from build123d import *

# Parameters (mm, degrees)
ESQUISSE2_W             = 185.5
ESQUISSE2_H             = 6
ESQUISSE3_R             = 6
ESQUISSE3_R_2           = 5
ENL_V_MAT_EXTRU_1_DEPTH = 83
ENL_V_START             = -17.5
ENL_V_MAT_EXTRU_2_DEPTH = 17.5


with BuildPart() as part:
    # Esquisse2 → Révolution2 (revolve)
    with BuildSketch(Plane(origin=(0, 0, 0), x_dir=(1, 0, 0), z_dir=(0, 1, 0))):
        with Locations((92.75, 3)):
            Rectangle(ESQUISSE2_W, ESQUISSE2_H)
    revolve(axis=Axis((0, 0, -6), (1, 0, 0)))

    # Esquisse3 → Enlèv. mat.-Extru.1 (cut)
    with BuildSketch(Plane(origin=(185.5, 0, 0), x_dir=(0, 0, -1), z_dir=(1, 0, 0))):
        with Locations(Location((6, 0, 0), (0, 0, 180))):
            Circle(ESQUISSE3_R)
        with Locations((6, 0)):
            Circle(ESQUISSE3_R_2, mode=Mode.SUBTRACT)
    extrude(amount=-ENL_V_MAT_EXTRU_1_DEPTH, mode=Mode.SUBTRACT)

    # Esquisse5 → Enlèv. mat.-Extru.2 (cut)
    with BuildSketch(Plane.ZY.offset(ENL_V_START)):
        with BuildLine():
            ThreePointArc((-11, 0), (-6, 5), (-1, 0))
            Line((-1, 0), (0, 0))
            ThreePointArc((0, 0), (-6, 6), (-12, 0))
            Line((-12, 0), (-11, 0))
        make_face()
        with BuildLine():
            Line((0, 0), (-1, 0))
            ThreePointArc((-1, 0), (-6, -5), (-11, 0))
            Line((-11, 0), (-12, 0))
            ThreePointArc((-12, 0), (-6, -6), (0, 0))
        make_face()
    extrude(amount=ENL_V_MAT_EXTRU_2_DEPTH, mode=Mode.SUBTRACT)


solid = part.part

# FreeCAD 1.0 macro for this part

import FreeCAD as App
import Part
import Sketcher
from FreeCAD import Vector

doc = App.newDocument("Part")
body = doc.addObject("PartDesign::Body", "Body")

# Sketch on XZ plane
sketch1 = body.newObject("Sketcher::SketchObject", "Sketch")
sketch1.AttachmentSupport = (doc.getObject("XZ_Plane"), [""])
sketch1.MapMode = "FlatFace"
sketch1.addGeometry([
    Part.LineSegment(Vector(0, -6, 0), Vector(0, 0, 0)),
    Part.LineSegment(Vector(0, 0, 0), Vector(185.5, 0, 0)),
    Part.LineSegment(Vector(185.5, 0, 0), Vector(185.5, -6, 0)),
    Part.LineSegment(Vector(185.5, -6, 0), Vector(0, -6, 0)),
], False)
sketch1.addGeometry(Part.LineSegment(Vector(0, -6, 0), Vector(185.5, -6, 0)), True)  # axis
sketch1.addConstraint([
    Sketcher.Constraint("Coincident", 0, 2, 1, 1),
    Sketcher.Constraint("Coincident", 1, 2, 2, 1),
    Sketcher.Constraint("Coincident", 2, 2, 3, 1),
    Sketcher.Constraint("Coincident", 3, 2, 0, 1),
    Sketcher.Constraint("Vertical", 0),
    Sketcher.Constraint("Horizontal", 1),
    Sketcher.Constraint("Vertical", 2),
    Sketcher.Constraint("Horizontal", 3),
    Sketcher.Constraint("Horizontal", 4),
    Sketcher.Constraint("Coincident", 0, 2, -1, 1),
    Sketcher.Constraint("Coincident", 4, 1, 3, 2),
    Sketcher.Constraint("Vertical", 1, 2, 4, 2),
    Sketcher.Constraint("DistanceY", 0, 1, 0, 2, 6.0),
    Sketcher.Constraint("DistanceX", 1, 1, 1, 2, 185.5),
])
revolution = body.newObject("PartDesign::Revolution", "Revolution")
revolution.Profile = sketch1
revolution.ReferenceAxis = (sketch1, ["Axis0"])
revolution.Angle = 360

# Sketch on YZ plane
sketch2 = body.newObject("Sketcher::SketchObject", "Sketch001")
sketch2.AttachmentSupport = (doc.getObject("YZ_Plane"), [""])
sketch2.MapMode = "FlatFace"
sketch2.AttachmentOffset = App.Placement(Vector(0, 0, 185.5), App.Rotation())
sketch2.addGeometry([
    Part.Circle(Vector(0, -6, 0), Vector(0, 0, 1), 6),
    Part.Circle(Vector(0, -6, 0), Vector(0, 0, 1), 5),
], False)
sketch2.addConstraint([
    Sketcher.Constraint("Coincident", 1, 3, 0, 3),
    Sketcher.Constraint("PointOnObject", 0, 3, -2),
    Sketcher.Constraint("Diameter", 0, 12.0),
    Sketcher.Constraint("Diameter", 1, 10.0),
    Sketcher.Constraint("DistanceY", 0, 3, -1, 1, 6.0),
])
pocket1 = body.newObject("PartDesign::Pocket", "Pocket")
pocket1.Profile = sketch2
pocket1.Length = 83

# Sketch on YZ plane
sketch3 = body.newObject("Sketcher::SketchObject", "Sketch002")
sketch3.AttachmentSupport = (doc.getObject("YZ_Plane"), [""])
sketch3.MapMode = "FlatFace"
sketch3.AttachmentOffset = App.Placement(Vector(0, 0, 17.5), App.Rotation())
sketch3.addGeometry([
    Part.Circle(Vector(0, -6, 0), Vector(0, 0, 1), 6),
    Part.Circle(Vector(0, -6, 0), Vector(0, 0, 1), 5),
], False)
sketch3.addConstraint([
    Sketcher.Constraint("Coincident", 1, 3, 0, 3),
    Sketcher.Constraint("PointOnObject", 0, 3, -2),
    Sketcher.Constraint("Diameter", 0, 12.0),
    Sketcher.Constraint("Diameter", 1, 10.0),
    Sketcher.Constraint("DistanceY", 0, 3, -1, 1, 6.0),
])
pocket2 = body.newObject("PartDesign::Pocket", "Pocket001")
pocket2.Profile = sketch3
pocket2.Length = 17.5

doc.recompute()
